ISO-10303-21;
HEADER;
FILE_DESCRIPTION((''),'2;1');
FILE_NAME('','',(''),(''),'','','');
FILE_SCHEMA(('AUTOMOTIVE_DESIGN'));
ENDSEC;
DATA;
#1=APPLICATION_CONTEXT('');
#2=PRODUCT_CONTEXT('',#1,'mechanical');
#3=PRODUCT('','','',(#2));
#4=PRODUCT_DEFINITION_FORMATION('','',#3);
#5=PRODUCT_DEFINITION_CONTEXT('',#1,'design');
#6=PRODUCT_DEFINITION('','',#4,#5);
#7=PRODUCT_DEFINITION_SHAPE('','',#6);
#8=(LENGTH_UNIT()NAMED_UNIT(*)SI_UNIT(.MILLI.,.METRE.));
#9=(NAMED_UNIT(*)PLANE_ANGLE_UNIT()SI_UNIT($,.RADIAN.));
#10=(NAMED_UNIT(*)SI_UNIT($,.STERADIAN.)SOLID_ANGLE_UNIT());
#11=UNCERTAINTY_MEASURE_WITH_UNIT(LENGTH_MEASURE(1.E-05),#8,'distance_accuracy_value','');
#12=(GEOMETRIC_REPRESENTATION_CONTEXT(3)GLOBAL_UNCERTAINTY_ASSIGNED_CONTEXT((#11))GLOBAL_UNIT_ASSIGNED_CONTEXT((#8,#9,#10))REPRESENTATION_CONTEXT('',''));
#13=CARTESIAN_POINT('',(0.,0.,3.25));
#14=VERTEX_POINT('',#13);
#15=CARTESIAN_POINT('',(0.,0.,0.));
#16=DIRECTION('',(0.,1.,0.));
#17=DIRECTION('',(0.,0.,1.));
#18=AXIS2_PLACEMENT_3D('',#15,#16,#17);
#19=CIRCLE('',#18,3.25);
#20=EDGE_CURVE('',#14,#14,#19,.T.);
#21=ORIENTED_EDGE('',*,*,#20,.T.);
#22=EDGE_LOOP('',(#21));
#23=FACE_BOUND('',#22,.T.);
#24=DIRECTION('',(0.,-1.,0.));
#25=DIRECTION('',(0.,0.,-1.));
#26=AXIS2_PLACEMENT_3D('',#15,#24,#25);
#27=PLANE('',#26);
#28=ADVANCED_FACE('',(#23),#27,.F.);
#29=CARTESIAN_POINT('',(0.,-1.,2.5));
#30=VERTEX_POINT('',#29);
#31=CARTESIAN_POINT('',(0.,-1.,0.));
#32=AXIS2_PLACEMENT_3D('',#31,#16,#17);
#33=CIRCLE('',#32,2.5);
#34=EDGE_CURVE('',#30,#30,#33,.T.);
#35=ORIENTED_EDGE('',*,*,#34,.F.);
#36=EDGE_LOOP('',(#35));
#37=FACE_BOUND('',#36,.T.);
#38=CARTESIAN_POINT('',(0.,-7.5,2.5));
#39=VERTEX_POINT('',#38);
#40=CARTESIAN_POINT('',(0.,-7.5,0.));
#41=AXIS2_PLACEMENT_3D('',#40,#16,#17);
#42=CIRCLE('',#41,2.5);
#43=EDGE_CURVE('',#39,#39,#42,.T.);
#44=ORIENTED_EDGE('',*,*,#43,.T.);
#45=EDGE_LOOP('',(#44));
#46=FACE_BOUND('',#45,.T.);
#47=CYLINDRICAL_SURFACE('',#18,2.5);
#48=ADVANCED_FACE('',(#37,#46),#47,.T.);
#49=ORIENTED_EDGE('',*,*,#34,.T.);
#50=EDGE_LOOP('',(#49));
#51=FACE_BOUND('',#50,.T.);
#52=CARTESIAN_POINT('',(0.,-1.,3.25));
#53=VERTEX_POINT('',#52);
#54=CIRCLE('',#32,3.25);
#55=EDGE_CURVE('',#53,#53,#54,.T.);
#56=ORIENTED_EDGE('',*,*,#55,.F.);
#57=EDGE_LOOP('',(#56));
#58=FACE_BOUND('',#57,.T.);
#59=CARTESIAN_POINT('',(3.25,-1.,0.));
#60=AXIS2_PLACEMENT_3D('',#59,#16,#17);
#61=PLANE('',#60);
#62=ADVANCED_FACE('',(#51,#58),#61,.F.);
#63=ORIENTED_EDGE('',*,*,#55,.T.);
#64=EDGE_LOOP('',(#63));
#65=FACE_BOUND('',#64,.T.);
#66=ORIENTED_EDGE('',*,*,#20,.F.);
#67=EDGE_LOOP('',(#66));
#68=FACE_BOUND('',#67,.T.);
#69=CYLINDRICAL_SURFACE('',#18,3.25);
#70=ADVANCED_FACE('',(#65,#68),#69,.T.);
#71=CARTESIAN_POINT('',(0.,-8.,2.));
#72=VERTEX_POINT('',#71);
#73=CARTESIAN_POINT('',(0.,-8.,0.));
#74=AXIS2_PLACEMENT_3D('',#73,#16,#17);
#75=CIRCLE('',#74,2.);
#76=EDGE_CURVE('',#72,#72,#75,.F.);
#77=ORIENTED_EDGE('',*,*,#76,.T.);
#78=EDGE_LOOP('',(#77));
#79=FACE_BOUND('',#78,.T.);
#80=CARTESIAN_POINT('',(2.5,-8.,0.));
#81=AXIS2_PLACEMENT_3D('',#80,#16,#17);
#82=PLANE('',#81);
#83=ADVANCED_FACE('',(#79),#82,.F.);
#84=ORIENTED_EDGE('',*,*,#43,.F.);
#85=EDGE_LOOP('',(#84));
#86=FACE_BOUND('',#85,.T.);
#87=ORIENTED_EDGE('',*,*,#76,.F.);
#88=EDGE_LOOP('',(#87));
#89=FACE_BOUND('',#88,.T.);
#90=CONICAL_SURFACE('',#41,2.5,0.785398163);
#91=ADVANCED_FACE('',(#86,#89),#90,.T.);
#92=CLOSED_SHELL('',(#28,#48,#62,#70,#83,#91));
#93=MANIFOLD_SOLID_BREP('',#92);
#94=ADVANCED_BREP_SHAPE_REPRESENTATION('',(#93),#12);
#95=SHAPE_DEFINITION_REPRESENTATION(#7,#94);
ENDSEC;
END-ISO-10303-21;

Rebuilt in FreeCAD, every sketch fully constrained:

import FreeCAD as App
import Part
import Sketcher
from FreeCAD import Vector


def edges_at(feature, points):
    """Names of the edges that pass closest to the given points."""
    edges = feature.Shape.Edges
    near = lambda p: min(range(len(edges)), key=lambda i: edges[i].distToShape(Part.Vertex(*p))[0])
    return sorted({f"Edge{near(p) + 1}" for p in points})

doc = App.newDocument("Part")
body = doc.addObject("PartDesign::Body", "Body")

sketch1 = doc.addObject("Sketcher::SketchObject", "Sketch")
body.addObject(sketch1)
sketch1.AttachmentSupport = (doc.XY_Plane, [""])
sketch1.MapMode = "FlatFace"
sketch1.addGeometry(Part.LineSegment(Vector(3.2, 0, 0), Vector(0, 0, 0)), False)
sketch1.addGeometry(Part.LineSegment(Vector(0, 0, 0), Vector(0, -8, 0)), False)
sketch1.addGeometry(Part.LineSegment(Vector(0, -8, 0), Vector(2.5, -8, 0)), False)
sketch1.addGeometry(Part.LineSegment(Vector(2.5, -8, 0), Vector(2.5, -1, 0)), False)
sketch1.addGeometry(Part.LineSegment(Vector(2.5, -1, 0), Vector(3.2, -1, 0)), False)
sketch1.addGeometry(Part.LineSegment(Vector(3.2, -1, 0), Vector(3.2, 0, 0)), False)
sketch1.addConstraint(Sketcher.Constraint("Coincident", 0, 2, 1, 1))
sketch1.addConstraint(Sketcher.Constraint("Coincident", 1, 2, 2, 1))
sketch1.addConstraint(Sketcher.Constraint("Coincident", 2, 2, 3, 1))
sketch1.addConstraint(Sketcher.Constraint("Coincident", 3, 2, 4, 1))
sketch1.addConstraint(Sketcher.Constraint("Coincident", 4, 2, 5, 1))
sketch1.addConstraint(Sketcher.Constraint("Coincident", 5, 2, 0, 1))
sketch1.addConstraint(Sketcher.Constraint("Horizontal", 0))
sketch1.addConstraint(Sketcher.Constraint("Vertical", 1))
sketch1.addConstraint(Sketcher.Constraint("Horizontal", 2))
sketch1.addConstraint(Sketcher.Constraint("Vertical", 3))
sketch1.addConstraint(Sketcher.Constraint("Horizontal", 4))
sketch1.addConstraint(Sketcher.Constraint("Vertical", 5))
sketch1.addConstraint(Sketcher.Constraint("Coincident", 0, 2, -1, 1))
sketch1.addConstraint(Sketcher.Constraint("DistanceY", 1, 2, 1, 1, 8.0))
sketch1.addConstraint(Sketcher.Constraint("DistanceY", 3, 1, 3, 2, 7.0))
sketch1.addConstraint(Sketcher.Constraint("DistanceX", 2, 1, 2, 2, 2.5))
sketch1.addConstraint(Sketcher.Constraint("DistanceX", 0, 2, 0, 1, 3.25))
revolution = doc.addObject("PartDesign::Revolution", "Revolution")
body.addObject(revolution)
revolution.Profile = sketch1
revolution.ReferenceAxis = (sketch1, ["V_Axis"])
revolution.Angle = 360
doc.recompute()

chamfer = doc.addObject("PartDesign::Chamfer", "Chamfer")
body.addObject(chamfer)
chamfer.Base = (revolution, edges_at(revolution, [(-2.5, -8, 0)]))
chamfer.Size = 0.5

doc.recompute()
